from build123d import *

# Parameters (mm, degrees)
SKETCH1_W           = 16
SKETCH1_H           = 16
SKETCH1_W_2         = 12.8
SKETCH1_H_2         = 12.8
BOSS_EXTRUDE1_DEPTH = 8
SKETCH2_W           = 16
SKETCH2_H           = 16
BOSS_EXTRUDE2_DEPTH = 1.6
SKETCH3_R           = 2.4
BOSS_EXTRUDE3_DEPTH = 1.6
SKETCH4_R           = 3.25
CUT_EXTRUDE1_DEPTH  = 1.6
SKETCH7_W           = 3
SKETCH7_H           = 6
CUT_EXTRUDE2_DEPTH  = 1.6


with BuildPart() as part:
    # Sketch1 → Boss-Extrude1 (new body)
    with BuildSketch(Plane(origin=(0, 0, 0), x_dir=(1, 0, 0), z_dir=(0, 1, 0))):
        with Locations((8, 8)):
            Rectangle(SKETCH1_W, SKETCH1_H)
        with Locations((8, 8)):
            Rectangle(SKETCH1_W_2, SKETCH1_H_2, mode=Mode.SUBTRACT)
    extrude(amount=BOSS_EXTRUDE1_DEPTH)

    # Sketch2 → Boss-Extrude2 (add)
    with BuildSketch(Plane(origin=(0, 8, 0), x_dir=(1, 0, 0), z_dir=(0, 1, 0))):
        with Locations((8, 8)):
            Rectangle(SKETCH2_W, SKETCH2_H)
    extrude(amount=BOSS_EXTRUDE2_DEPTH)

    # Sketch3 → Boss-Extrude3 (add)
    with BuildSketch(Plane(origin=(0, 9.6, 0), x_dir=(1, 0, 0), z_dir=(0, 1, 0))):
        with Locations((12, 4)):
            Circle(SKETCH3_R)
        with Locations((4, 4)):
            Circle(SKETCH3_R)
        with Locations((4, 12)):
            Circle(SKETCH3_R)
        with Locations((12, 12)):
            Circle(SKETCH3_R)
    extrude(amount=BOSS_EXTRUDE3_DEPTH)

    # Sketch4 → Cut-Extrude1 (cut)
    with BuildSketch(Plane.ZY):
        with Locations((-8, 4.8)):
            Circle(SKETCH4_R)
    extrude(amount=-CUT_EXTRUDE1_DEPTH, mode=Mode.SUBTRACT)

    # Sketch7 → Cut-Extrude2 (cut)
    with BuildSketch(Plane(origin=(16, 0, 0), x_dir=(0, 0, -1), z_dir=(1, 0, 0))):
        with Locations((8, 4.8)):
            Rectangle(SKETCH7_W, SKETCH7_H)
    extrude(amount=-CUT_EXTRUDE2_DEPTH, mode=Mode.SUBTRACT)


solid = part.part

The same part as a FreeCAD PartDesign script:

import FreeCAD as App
import Part
import Sketcher

doc = App.newDocument("Part")
params = doc.addObject("Spreadsheet::Sheet", "Params")
for row, (alias, value) in enumerate([
    ("sketch1_width", "16 mm"),
    ("sketch1_width2", "12.8 mm"),
    ("pad1_length", "8 mm"),
    ("sketch2_width", "16 mm"),
    ("pad2_length", "1.6 mm"),
    ("sketch3_diameter", "4.8 mm"),
    ("pad3_length", "1.6 mm"),
    ("sketch4_diameter", "6.5 mm"),
    ("pocket1_length", "1.6 mm"),
    ("sketch5_width", "6 mm"),
    ("sketch5_height", "3 mm"),
    ("pocket2_length", "1.6 mm"),
], start=1):
    params.set(f"A{row}", alias)
    params.set(f"B{row}", "=" + value)
    params.setAlias(f"B{row}", alias)

body = doc.addObject("PartDesign::Body", "Body")

# Sketch on XZ plane
sketch1 = body.newObject("Sketcher::SketchObject", "Sketch")
sketch1.AttachmentSupport = (doc.getObject("XZ_Plane"), [""])
sketch1.MapMode = "FlatFace"
sketch1.addGeometry([
    Part.LineSegment(App.Vector(0, -16, 0), App.Vector(0, 0, 0)),  # 0
    Part.LineSegment(App.Vector(0, 0, 0), App.Vector(16, 0, 0)),  # 1
    Part.LineSegment(App.Vector(16, 0, 0), App.Vector(16, -16, 0)),  # 2
    Part.LineSegment(App.Vector(16, -16, 0), App.Vector(0, -16, 0)),  # 3
    Part.LineSegment(App.Vector(14, -2, 0), App.Vector(2, -2, 0)),  # 4
    Part.LineSegment(App.Vector(2, -2, 0), App.Vector(2, -14, 0)),  # 5
    Part.LineSegment(App.Vector(2, -14, 0), App.Vector(14, -14, 0)),  # 6
    Part.LineSegment(App.Vector(14, -14, 0), App.Vector(14, -2, 0)),  # 7
], False)
sketch1.addConstraint([
    Sketcher.Constraint("Coincident", 0, 2, 1, 1),
    Sketcher.Constraint("Coincident", 1, 2, 2, 1),
    Sketcher.Constraint("Coincident", 2, 2, 3, 1),
    Sketcher.Constraint("Coincident", 3, 2, 0, 1),
    Sketcher.Constraint("Coincident", 4, 2, 5, 1),
    Sketcher.Constraint("Coincident", 5, 2, 6, 1),
    Sketcher.Constraint("Coincident", 6, 2, 7, 1),
    Sketcher.Constraint("Coincident", 7, 2, 4, 1),
    Sketcher.Constraint("Vertical", 0),
    Sketcher.Constraint("Horizontal", 1),
    Sketcher.Constraint("Vertical", 2),
    Sketcher.Constraint("Horizontal", 3),
    Sketcher.Constraint("Horizontal", 4),
    Sketcher.Constraint("Vertical", 5),
    Sketcher.Constraint("Horizontal", 6),
    Sketcher.Constraint("Vertical", 7),
    Sketcher.Constraint("Coincident", 0, 2, -1, 1),
    Sketcher.Constraint("Equal", 3, 0),
    Sketcher.Constraint("Equal", 6, 5),
    Sketcher.Constraint("DistanceX", 1, 1, 1, 2, 16.0),
    Sketcher.Constraint("DistanceX", 4, 2, 4, 1, 12.8),
    Sketcher.Constraint("DistanceX", -1, 1, 4, 2, 1.6),
    Sketcher.Constraint("DistanceY", 4, 2, -1, 1, 1.6),
])
sketch1.setExpression("Constraints[19]", "Params.sketch1_width")
sketch1.setExpression("Constraints[20]", "Params.sketch1_width2")
pad1 = body.newObject("PartDesign::Pad", "Pad")
pad1.Profile = sketch1
pad1.setExpression("Length", "Params.pad1_length")
pad1.Reversed = True

# Sketch on XZ plane
sketch2 = body.newObject("Sketcher::SketchObject", "Sketch001")
sketch2.AttachmentSupport = (doc.getObject("XZ_Plane"), [""])
sketch2.MapMode = "FlatFace"
sketch2.AttachmentOffset = App.Placement(App.Vector(0, 0, -8), App.Rotation())
sketch2.addGeometry([
    Part.LineSegment(App.Vector(0, -16, 0), App.Vector(0, 0, 0)),
    Part.LineSegment(App.Vector(0, 0, 0), App.Vector(16, 0, 0)),
    Part.LineSegment(App.Vector(16, 0, 0), App.Vector(16, -16, 0)),
    Part.LineSegment(App.Vector(16, -16, 0), App.Vector(0, -16, 0)),
], False)
sketch2.addConstraint([
    Sketcher.Constraint("Coincident", 0, 2, 1, 1),
    Sketcher.Constraint("Coincident", 1, 2, 2, 1),
    Sketcher.Constraint("Coincident", 2, 2, 3, 1),
    Sketcher.Constraint("Coincident", 3, 2, 0, 1),
    Sketcher.Constraint("Vertical", 0),
    Sketcher.Constraint("Horizontal", 1),
    Sketcher.Constraint("Vertical", 2),
    Sketcher.Constraint("Horizontal", 3),
    Sketcher.Constraint("Coincident", 0, 2, -1, 1),
    Sketcher.Constraint("Equal", 3, 0),
    Sketcher.Constraint("DistanceX", 1, 1, 1, 2, 16.0),
])
sketch2.setExpression("Constraints[10]", "Params.sketch2_width")
pad2 = body.newObject("PartDesign::Pad", "Pad001")
pad2.Profile = sketch2
pad2.setExpression("Length", "Params.pad2_length")
pad2.Reversed = True

# Sketch on XZ plane
sketch3 = body.newObject("Sketcher::SketchObject", "Sketch002")
sketch3.AttachmentSupport = (doc.getObject("XZ_Plane"), [""])
sketch3.MapMode = "FlatFace"
sketch3.AttachmentOffset = App.Placement(App.Vector(0, 0, -9.6), App.Rotation())
sketch3.addGeometry([
    Part.Circle(App.Vector(12, -4, 0), App.Vector(0, 0, 1), 2.4),
    Part.Circle(App.Vector(4, -4, 0), App.Vector(0, 0, 1), 2.4),
    Part.Circle(App.Vector(4, -12, 0), App.Vector(0, 0, 1), 2.4),
    Part.Circle(App.Vector(12, -12, 0), App.Vector(0, 0, 1), 2.4),
], False)
sketch3.addConstraint([
    Sketcher.Constraint("Equal", 0, 1),
    Sketcher.Constraint("Equal", 1, 2),
    Sketcher.Constraint("Equal", 2, 3),
    Sketcher.Constraint("Horizontal", 0, 3, 1, 3),
    Sketcher.Constraint("Horizontal", 2, 3, 3, 3),
    Sketcher.Constraint("Vertical", 1, 3, 2, 3),
    Sketcher.Constraint("Vertical", 0, 3, 3, 3),
    Sketcher.Constraint("Diameter", 0, 4.8),
    Sketcher.Constraint("DistanceX", -1, 1, 0, 3, 12.0),
    Sketcher.Constraint("DistanceY", 0, 3, -1, 1, 4.0),
    Sketcher.Constraint("DistanceX", -1, 1, 1, 3, 4.0),
    Sketcher.Constraint("DistanceY", 2, 3, -1, 1, 12.0),
])
sketch3.setExpression("Constraints[7]", "Params.sketch3_diameter")
pad3 = body.newObject("PartDesign::Pad", "Pad002")
pad3.Profile = sketch3
pad3.setExpression("Length", "Params.pad3_length")
pad3.Reversed = True

# Sketch on YZ plane
sketch4 = body.newObject("Sketcher::SketchObject", "Sketch003")
sketch4.AttachmentSupport = (doc.getObject("YZ_Plane"), [""])
sketch4.MapMode = "FlatFace"
sketch4.addGeometry(Part.Circle(App.Vector(4.8, -8, 0), App.Vector(0, 0, 1), 3.2), False)
sketch4.addConstraint([
    Sketcher.Constraint("Diameter", 0, 6.5),
    Sketcher.Constraint("DistanceY", 0, 3, -1, 1, 8.0),
    Sketcher.Constraint("DistanceX", -1, 1, 0, 3, 4.8),
])
sketch4.setExpression("Constraints[0]", "Params.sketch4_diameter")
pocket1 = body.newObject("PartDesign::Pocket", "Pocket")
pocket1.Profile = sketch4
pocket1.setExpression("Length", "Params.pocket1_length")
pocket1.Reversed = True

# Sketch on YZ plane
sketch5 = body.newObject("Sketcher::SketchObject", "Sketch004")
sketch5.AttachmentSupport = (doc.getObject("YZ_Plane"), [""])
sketch5.MapMode = "FlatFace"
sketch5.AttachmentOffset = App.Placement(App.Vector(0, 0, 16), App.Rotation())
sketch5.addGeometry([
    Part.LineSegment(App.Vector(7.8, -6.5, 0), App.Vector(1.8, -6.5, 0)),
    Part.LineSegment(App.Vector(1.8, -6.5, 0), App.Vector(1.8, -9.5, 0)),
    Part.LineSegment(App.Vector(1.8, -9.5, 0), App.Vector(7.8, -9.5, 0)),
    Part.LineSegment(App.Vector(7.8, -9.5, 0), App.Vector(7.8, -6.5, 0)),
], False)
sketch5.addConstraint([
    Sketcher.Constraint("Coincident", 0, 2, 1, 1),
    Sketcher.Constraint("Coincident", 1, 2, 2, 1),
    Sketcher.Constraint("Coincident", 2, 2, 3, 1),
    Sketcher.Constraint("Coincident", 3, 2, 0, 1),
    Sketcher.Constraint("Horizontal", 0),
    Sketcher.Constraint("Vertical", 1),
    Sketcher.Constraint("Horizontal", 2),
    Sketcher.Constraint("Vertical", 3),
    Sketcher.Constraint("DistanceX", 0, 2, 0, 1, 6.0),
    Sketcher.Constraint("DistanceY", 1, 2, 1, 1, 3.0),
    Sketcher.Constraint("DistanceX", -1, 1, 0, 2, 1.8),
    Sketcher.Constraint("DistanceY", 0, 2, -1, 1, 6.5),
])
sketch5.setExpression("Constraints[8]", "Params.sketch5_width")
sketch5.setExpression("Constraints[9]", "Params.sketch5_height")
pocket2 = body.newObject("PartDesign::Pocket", "Pocket001")
pocket2.Profile = sketch5
pocket2.setExpression("Length", "Params.pocket2_length")

doc.recompute()
